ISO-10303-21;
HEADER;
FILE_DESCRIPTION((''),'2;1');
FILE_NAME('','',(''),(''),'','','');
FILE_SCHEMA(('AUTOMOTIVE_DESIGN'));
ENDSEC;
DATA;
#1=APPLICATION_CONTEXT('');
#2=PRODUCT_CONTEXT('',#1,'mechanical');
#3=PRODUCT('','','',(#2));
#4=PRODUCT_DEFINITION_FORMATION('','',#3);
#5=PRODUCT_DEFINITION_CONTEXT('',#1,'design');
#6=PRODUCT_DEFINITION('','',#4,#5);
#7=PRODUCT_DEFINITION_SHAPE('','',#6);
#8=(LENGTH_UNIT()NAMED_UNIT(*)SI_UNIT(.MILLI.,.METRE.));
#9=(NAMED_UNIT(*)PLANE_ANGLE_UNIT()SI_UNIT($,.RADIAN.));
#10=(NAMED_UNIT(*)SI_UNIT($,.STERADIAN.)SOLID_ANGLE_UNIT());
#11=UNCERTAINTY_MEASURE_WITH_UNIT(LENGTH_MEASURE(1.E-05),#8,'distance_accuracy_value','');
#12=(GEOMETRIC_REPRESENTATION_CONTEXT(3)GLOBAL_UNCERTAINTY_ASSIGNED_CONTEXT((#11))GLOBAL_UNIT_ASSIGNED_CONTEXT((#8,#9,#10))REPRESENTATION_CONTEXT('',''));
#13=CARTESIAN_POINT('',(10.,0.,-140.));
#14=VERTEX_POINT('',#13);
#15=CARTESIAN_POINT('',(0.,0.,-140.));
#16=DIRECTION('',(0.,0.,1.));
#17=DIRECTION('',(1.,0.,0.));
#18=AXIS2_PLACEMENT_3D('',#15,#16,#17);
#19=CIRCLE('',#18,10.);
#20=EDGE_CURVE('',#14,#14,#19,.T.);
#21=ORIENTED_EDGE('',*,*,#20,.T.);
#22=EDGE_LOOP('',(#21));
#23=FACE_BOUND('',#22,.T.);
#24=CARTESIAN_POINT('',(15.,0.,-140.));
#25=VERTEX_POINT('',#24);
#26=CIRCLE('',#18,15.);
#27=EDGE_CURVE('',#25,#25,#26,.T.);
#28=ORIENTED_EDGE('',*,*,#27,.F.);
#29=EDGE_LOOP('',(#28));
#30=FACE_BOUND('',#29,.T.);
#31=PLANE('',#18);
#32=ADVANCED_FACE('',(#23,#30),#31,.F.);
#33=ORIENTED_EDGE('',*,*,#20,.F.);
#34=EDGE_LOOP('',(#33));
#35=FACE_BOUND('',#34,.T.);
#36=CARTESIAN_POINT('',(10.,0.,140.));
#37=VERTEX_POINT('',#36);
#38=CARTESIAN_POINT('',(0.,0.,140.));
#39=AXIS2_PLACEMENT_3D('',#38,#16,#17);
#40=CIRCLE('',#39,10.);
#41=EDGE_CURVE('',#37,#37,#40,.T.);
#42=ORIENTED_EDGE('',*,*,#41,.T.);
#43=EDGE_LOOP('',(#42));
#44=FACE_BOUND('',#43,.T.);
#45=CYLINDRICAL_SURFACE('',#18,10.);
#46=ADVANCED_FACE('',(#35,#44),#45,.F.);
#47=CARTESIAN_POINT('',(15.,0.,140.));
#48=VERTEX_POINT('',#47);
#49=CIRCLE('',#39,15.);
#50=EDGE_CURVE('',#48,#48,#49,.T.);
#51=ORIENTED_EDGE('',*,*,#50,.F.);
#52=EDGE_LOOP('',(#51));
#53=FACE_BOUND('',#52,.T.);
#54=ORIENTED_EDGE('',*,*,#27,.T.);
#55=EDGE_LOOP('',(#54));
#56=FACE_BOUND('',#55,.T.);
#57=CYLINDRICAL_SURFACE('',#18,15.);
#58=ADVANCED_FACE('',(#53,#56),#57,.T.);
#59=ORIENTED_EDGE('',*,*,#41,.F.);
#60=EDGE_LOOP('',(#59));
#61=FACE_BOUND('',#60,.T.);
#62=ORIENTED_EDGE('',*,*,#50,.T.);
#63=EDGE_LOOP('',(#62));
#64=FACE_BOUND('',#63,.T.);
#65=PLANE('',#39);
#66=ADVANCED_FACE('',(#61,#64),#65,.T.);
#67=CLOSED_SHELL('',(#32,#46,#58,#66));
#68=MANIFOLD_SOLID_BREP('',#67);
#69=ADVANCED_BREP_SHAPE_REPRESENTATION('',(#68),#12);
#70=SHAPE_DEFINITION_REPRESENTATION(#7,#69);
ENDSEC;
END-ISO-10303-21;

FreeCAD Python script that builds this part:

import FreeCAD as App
import Part
import Sketcher
Q = App.Units.Quantity

doc = App.newDocument("Part")
params = doc.addObject("Spreadsheet::Sheet", "Params")
for row, (alias, value) in enumerate([
    ("sketch1_diameter", "30 mm"),
    ("sketch1_diameter2", "20 mm"),
    ("pad1_length", "280 mm"),
], start=1):
    params.set(f"A{row}", alias)
    params.set(f"B{row}", "=" + value)
    params.setAlias(f"B{row}", alias)

body = doc.addObject("PartDesign::Body", "Body")

sketch1 = body.newObject("Sketcher::SketchObject", "Sketch")
sketch1.AttachmentSupport = (doc.getObject("XY_Plane"), [""])
sketch1.MapMode = "FlatFace"
sketch1.addGeometry([
    Part.Circle(App.Vector(0, 0, 0), App.Vector(0, 0, 1), 15),
    Part.Circle(App.Vector(0, 0, 0), App.Vector(0, 0, 1), 10),
], False)
sketch1.addConstraint([
    Sketcher.Constraint("Coincident", 0, 3, -1, 1),
    Sketcher.Constraint("Coincident", 1, 3, -1, 1),
    Sketcher.Constraint("Diameter", 0, Q("30 mm")),
    Sketcher.Constraint("Diameter", 1, Q("20 mm")),
])
sketch1.setExpression("Constraints[2]", "Params.sketch1_diameter")
sketch1.setExpression("Constraints[3]", "Params.sketch1_diameter2")
pad1 = body.newObject("PartDesign::Pad", "Pad")
pad1.Profile = sketch1
pad1.setExpression("Length", "Params.pad1_length")
pad1.Midplane = True

doc.recompute()
